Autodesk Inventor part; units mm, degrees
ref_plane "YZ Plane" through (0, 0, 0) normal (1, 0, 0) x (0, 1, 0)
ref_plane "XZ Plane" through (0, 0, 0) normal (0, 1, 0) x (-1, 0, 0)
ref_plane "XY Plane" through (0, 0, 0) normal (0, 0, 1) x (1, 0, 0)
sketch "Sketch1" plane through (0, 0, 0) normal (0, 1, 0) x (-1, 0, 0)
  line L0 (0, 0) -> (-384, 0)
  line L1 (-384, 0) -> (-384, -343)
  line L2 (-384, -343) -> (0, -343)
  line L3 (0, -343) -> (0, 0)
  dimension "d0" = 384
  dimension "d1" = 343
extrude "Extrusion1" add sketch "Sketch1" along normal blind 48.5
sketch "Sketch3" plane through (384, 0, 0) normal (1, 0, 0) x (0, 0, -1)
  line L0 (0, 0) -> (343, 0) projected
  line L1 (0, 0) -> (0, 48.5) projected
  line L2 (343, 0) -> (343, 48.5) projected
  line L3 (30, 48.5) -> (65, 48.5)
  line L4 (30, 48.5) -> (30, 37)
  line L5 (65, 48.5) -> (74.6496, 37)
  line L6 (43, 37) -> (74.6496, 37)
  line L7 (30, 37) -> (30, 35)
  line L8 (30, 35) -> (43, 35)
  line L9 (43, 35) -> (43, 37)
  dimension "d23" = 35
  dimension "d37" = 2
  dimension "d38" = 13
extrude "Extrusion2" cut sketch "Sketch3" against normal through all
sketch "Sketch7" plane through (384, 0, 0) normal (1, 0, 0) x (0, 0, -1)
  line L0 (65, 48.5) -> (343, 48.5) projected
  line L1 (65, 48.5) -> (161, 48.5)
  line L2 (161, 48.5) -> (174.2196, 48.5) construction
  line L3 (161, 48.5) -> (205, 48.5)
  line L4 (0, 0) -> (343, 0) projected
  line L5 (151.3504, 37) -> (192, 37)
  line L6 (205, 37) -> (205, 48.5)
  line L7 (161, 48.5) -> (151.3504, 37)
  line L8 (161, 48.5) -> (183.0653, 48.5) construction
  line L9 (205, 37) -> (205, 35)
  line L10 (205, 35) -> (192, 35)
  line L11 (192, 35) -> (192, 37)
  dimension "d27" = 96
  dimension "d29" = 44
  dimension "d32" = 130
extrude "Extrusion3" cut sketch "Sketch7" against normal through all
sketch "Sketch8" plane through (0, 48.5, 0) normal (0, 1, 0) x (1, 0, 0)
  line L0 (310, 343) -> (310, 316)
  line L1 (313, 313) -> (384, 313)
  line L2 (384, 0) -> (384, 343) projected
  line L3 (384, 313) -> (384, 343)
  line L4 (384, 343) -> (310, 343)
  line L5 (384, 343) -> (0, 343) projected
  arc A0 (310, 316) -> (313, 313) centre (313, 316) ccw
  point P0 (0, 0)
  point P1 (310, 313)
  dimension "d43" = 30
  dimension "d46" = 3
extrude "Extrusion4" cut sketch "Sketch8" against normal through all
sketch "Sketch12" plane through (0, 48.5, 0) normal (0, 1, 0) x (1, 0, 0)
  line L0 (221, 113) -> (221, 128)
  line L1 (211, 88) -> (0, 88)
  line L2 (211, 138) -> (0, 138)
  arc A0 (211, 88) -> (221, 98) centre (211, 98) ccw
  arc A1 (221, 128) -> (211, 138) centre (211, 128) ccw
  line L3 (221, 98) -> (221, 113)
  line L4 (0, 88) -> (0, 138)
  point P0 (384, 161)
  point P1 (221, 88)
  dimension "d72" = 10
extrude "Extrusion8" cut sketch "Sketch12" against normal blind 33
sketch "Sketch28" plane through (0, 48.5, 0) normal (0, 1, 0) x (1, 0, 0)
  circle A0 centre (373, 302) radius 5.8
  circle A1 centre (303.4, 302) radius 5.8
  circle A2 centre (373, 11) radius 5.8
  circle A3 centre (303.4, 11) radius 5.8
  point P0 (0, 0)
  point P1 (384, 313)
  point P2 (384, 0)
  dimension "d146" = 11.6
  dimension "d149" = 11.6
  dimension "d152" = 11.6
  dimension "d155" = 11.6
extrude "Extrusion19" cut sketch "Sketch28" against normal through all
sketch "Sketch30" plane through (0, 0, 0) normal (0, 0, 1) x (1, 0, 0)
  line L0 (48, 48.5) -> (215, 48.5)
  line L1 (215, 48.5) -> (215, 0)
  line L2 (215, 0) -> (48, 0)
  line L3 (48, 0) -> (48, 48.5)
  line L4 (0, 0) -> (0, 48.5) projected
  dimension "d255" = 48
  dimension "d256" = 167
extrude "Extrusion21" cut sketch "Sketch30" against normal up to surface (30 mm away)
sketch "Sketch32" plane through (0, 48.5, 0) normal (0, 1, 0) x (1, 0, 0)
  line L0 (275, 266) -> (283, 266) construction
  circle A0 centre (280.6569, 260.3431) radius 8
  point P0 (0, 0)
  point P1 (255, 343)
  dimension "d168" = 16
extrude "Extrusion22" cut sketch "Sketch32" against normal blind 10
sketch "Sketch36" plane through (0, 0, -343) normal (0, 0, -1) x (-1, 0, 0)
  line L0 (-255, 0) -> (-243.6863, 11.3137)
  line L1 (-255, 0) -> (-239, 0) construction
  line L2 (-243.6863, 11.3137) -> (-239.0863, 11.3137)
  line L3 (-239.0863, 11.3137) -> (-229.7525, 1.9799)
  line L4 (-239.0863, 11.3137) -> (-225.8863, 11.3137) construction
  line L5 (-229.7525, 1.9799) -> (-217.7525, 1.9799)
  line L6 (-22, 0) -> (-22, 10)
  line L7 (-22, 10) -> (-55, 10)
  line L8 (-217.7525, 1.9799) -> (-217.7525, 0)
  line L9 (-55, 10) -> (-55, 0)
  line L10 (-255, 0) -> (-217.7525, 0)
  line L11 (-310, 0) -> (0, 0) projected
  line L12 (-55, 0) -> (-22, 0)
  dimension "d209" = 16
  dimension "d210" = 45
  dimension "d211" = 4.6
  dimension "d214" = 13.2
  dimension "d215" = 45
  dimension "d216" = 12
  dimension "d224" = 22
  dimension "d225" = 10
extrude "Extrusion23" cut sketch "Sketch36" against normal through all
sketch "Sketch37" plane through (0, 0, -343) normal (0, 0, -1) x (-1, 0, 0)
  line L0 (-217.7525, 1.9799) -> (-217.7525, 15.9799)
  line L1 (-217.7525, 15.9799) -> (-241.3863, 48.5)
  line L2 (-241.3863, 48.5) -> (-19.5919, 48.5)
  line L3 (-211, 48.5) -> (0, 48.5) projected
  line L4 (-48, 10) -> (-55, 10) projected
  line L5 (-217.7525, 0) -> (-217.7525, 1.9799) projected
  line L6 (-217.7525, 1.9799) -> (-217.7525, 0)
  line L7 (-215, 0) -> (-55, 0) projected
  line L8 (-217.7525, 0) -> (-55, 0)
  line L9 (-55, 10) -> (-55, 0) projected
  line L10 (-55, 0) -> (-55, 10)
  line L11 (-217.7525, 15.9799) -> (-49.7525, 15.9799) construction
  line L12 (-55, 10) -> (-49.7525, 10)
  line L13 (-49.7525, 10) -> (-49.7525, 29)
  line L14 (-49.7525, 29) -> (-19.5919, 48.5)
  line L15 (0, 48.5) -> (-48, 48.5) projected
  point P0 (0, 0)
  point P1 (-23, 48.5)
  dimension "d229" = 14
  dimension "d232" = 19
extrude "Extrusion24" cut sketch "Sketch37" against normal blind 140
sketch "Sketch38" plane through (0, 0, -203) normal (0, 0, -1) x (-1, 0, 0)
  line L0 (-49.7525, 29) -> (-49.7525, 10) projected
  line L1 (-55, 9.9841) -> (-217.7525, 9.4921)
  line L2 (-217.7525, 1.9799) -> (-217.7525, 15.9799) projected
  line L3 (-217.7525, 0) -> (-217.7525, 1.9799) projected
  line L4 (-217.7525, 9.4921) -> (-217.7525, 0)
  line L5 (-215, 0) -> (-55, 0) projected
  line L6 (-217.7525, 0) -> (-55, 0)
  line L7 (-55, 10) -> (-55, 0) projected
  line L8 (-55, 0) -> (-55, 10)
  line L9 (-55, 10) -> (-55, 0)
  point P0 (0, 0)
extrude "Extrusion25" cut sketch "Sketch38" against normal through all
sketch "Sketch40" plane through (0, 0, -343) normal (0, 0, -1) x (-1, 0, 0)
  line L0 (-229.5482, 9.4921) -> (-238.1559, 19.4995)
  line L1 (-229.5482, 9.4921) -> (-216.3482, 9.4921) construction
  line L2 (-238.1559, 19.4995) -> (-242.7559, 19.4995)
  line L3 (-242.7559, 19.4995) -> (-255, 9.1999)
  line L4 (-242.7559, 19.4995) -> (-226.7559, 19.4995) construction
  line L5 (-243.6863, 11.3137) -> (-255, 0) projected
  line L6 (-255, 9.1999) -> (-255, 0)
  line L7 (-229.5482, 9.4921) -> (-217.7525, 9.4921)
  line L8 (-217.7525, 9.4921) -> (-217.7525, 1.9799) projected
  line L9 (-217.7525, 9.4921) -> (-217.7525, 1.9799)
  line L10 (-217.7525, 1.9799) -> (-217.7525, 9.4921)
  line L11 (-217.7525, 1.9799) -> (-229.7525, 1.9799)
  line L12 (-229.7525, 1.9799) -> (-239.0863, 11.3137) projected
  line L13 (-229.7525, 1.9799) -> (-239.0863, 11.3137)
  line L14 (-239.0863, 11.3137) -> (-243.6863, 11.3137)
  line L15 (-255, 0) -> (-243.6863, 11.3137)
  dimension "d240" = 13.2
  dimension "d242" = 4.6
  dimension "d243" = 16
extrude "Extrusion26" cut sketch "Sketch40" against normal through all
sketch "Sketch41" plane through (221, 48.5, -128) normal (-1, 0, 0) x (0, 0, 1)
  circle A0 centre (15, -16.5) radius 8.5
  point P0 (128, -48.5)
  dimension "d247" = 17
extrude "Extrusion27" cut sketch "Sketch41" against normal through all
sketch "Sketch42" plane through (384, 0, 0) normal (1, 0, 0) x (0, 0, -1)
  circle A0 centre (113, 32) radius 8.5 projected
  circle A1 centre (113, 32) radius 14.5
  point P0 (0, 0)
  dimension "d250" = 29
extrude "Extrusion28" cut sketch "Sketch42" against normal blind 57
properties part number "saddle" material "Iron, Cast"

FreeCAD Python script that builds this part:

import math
import FreeCAD as App
import Part
import Sketcher
Q = App.Units.Quantity


def add_polygon(sketch, points):
    """Adds a closed chain of lines whose ends are joined by coincident constraints."""
    first, n = sketch.GeometryCount, len(points)
    for a, b in zip(points, points[1:] + points[:1]):
        sketch.addGeometry(Part.LineSegment(App.Vector(*a, 0), App.Vector(*b, 0)), False)
    for i in range(n):
        sketch.addConstraint(Sketcher.Constraint("Coincident", first + i, 2, first + (i + 1) % n, 1))

doc = App.newDocument("Part")
params = doc.addObject("Spreadsheet::Sheet", "Params")
for row, (alias, value) in enumerate([
    ("sketch1_width", "384 mm"),
    ("sketch1_height", "343 mm"),
    ("pad1_length", "48.5 mm"),
    ("sketch2_width", "2 mm"),
    ("sketch2_height", "35 mm"),
    ("sketch2_height2", "13 mm"),
    ("sketch2_width2", "13.5 mm"),
    ("sketch3_height", "44 mm"),
    ("sketch3_width", "2 mm"),
    ("sketch3_height2", "13 mm"),
    ("sketch3_width2", "13.5 mm"),
    ("sketch4_radius", "3 mm"),
    ("sketch4_height", "30 mm"),
    ("sketch4_width", "74 mm"),
    ("sketch5_radius", "10 mm"),
    ("sketch5_width", "211 mm"),
    ("sketch5_height", "30 mm"),
    ("pocket4_length", "33 mm"),
    ("sketch6_diameter", "11.6 mm"),
    ("sketch7_width", "167 mm"),
    ("sketch7_height", "48.5 mm"),
    ("pocket6_length", "30 mm"),
    ("sketch8_diameter", "16 mm"),
    ("pocket7_length", "10 mm"),
    ("sketch9_width", "12 mm"),
    ("sketch9_height", "10 mm"),
    ("sketch9_length", "16 mm"),
    ("sketch9_width2", "4.6 mm"),
    ("sketch9_length2", "13.2 mm"),
    ("sketch10_height", "19 mm"),
    ("sketch10_height2", "10 mm"),
    ("sketch10_height3", "15.98 mm"),
    ("pocket9_length", "140 mm"),
    ("sketch12_length", "16 mm"),
    ("sketch12_width", "4.6 mm"),
    ("sketch12_length2", "13.2 mm"),
    ("sketch12_width2", "12 mm"),
    ("sketch12_height", "9.2 mm"),
    ("sketch13_diameter", "17 mm"),
    ("sketch14_diameter", "29 mm"),
    ("sketch14_diameter2", "17 mm"),
    ("pocket13_length", "57 mm"),
], start=1):
    params.set(f"A{row}", alias)
    params.set(f"B{row}", "=" + value)
    params.setAlias(f"B{row}", alias)

body = doc.addObject("PartDesign::Body", "Body")

sketch1 = doc.addObject("Sketcher::SketchObject", "Sketch")
body.addObject(sketch1)
sketch1.AttachmentSupport = (doc.XZ_Plane, [""])
sketch1.MapMode = "FlatFace"
add_polygon(sketch1, [(0, -343), (0, 0), (384, 0), (384, -343)])
sketch1.addConstraint([
    Sketcher.Constraint("Vertical", 0),
    Sketcher.Constraint("Horizontal", 1),
    Sketcher.Constraint("Vertical", 2),
    Sketcher.Constraint("Horizontal", 3),
    Sketcher.Constraint("Coincident", 0, 2, -1, 1),
    Sketcher.Constraint("DistanceX", 1, 1, 1, 2, 384.0),
    Sketcher.Constraint("DistanceY", 0, 1, 0, 2, 343.0),
])
sketch1.setExpression("Constraints[9]", "Params.sketch1_width")
sketch1.setExpression("Constraints[10]", "Params.sketch1_height")
pad1 = doc.addObject("PartDesign::Pad", "Pad")
body.addObject(pad1)
pad1.Profile = sketch1
pad1.setExpression("Length", "Params.pad1_length")
pad1.Reversed = True

sketch2 = doc.addObject("Sketcher::SketchObject", "Sketch001")
body.addObject(sketch2)
sketch2.AttachmentSupport = (doc.YZ_Plane, [""])
sketch2.MapMode = "FlatFace"
sketch2.AttachmentOffset = App.Placement(App.Vector(0, 0, 384), App.Rotation())
add_polygon(sketch2, [(48.5, -65), (48.5, -30), (35, -30), (35, -43), (37, -43), (37, -74.6)])
sketch2.addConstraint([
    Sketcher.Constraint("Vertical", 0),
    Sketcher.Constraint("Horizontal", 1),
    Sketcher.Constraint("Vertical", 2),
    Sketcher.Constraint("Horizontal", 3),
    Sketcher.Constraint("Vertical", 4),
    Sketcher.Constraint("DistanceX", 3, 1, 3, 2, 2.0),
    Sketcher.Constraint("DistanceY", 0, 1, 0, 2, 35.0),
    Sketcher.Constraint("DistanceY", 2, 2, 2, 1, 13.0),
    Sketcher.Constraint("DistanceX", -1, 1, 1, 2, 35.0),
    Sketcher.Constraint("Angle", 5, Q("39.9999 deg")),
    Sketcher.Constraint("DistanceX", 1, 2, 1, 1, 13.5),
    Sketcher.Constraint("DistanceY", 0, 2, -1, 1, 30.0),
])
sketch2.setExpression("Constraints[11]", "Params.sketch2_width")
sketch2.setExpression("Constraints[12]", "Params.sketch2_height")
sketch2.setExpression("Constraints[13]", "Params.sketch2_height2")
sketch2.setExpression("Constraints[16]", "Params.sketch2_width2")
pocket1 = doc.addObject("PartDesign::Pocket", "Pocket")
body.addObject(pocket1)
pocket1.Profile = sketch2
pocket1.Type = "ThroughAll"

sketch3 = doc.addObject("Sketcher::SketchObject", "Sketch002")
body.addObject(sketch3)
sketch3.AttachmentSupport = (doc.YZ_Plane, [""])
sketch3.MapMode = "FlatFace"
sketch3.AttachmentOffset = App.Placement(App.Vector(0, 0, 384), App.Rotation())
add_polygon(sketch3, [(48.5, -205), (48.5, -161), (37, -151.4), (37, -192), (35, -192), (35, -205)])
sketch3.addConstraint([
    Sketcher.Constraint("Vertical", 0),
    Sketcher.Constraint("Vertical", 2),
    Sketcher.Constraint("Horizontal", 3),
    Sketcher.Constraint("Vertical", 4),
    Sketcher.Constraint("Horizontal", 5),
    Sketcher.Constraint("DistanceY", 0, 1, 0, 2, 44.0),
    Sketcher.Constraint("DistanceX", 3, 2, 3, 1, 2.0),
    Sketcher.Constraint("DistanceY", 4, 2, 4, 1, 13.0),
    Sketcher.Constraint("Angle", 1, Q("140.0001 deg")),
    Sketcher.Constraint("DistanceX", 5, 1, 5, 2, 13.5),
    Sketcher.Constraint("DistanceY", 0, 2, -1, 1, 161.0),
    Sketcher.Constraint("DistanceX", -1, 1, 1, 2, 37.0),
])
sketch3.setExpression("Constraints[11]", "Params.sketch3_height")
sketch3.setExpression("Constraints[12]", "Params.sketch3_width")
sketch3.setExpression("Constraints[13]", "Params.sketch3_height2")
sketch3.setExpression("Constraints[15]", "Params.sketch3_width2")
pocket2 = doc.addObject("PartDesign::Pocket", "Pocket001")
body.addObject(pocket2)
pocket2.Profile = sketch3
pocket2.Type = "ThroughAll"

sketch4 = doc.addObject("Sketcher::SketchObject", "Sketch003")
body.addObject(sketch4)
sketch4.AttachmentSupport = (doc.XZ_Plane, [""])
sketch4.MapMode = "FlatFace"
sketch4.AttachmentOffset = App.Placement(App.Vector(0, 0, -48.5), App.Rotation())
sketch4.addGeometry([
    Part.LineSegment(App.Vector(384, -343, 0), App.Vector(310, -343, 0)),
    Part.LineSegment(App.Vector(310, -343, 0), App.Vector(310, -316, 0)),
    Part.ArcOfCircle(Part.Circle(App.Vector(313, -316, 0), App.Vector(0, 0, 1), 3), math.radians(90), math.radians(180)),
    Part.LineSegment(App.Vector(313, -313, 0), App.Vector(384, -313, 0)),
    Part.LineSegment(App.Vector(384, -313, 0), App.Vector(384, -343, 0)),
], False)
sketch4.addConstraint([
    Sketcher.Constraint("Coincident", 0, 2, 1, 1),
    Sketcher.Constraint("Tangent", 1, 2, 2, 2),
    Sketcher.Constraint("Tangent", 2, 1, 3, 1),
    Sketcher.Constraint("Coincident", 3, 2, 4, 1),
    Sketcher.Constraint("Coincident", 4, 2, 0, 1),
    Sketcher.Constraint("Horizontal", 0),
    Sketcher.Constraint("Vertical", 1),
    Sketcher.Constraint("Horizontal", 3),
    Sketcher.Constraint("Vertical", 4),
    Sketcher.Constraint("Radius", 2, 3.0),
    Sketcher.Constraint("DistanceY", 4, 2, 4, 1, 30.0),
    Sketcher.Constraint("DistanceX", 0, 2, 0, 1, 74.0),
    Sketcher.Constraint("DistanceX", -1, 1, 2, 3, 313.0),
    Sketcher.Constraint("DistanceY", 2, 3, -1, 1, 316.0),
])
sketch4.setExpression("Constraints[9]", "Params.sketch4_radius")
sketch4.setExpression("Constraints[10]", "Params.sketch4_height")
sketch4.setExpression("Constraints[11]", "Params.sketch4_width")
pocket3 = doc.addObject("PartDesign::Pocket", "Pocket002")
body.addObject(pocket3)
pocket3.Profile = sketch4
pocket3.Type = "ThroughAll"
pocket3.Reversed = True

sketch5 = doc.addObject("Sketcher::SketchObject", "Sketch004")
body.addObject(sketch5)
sketch5.AttachmentSupport = (doc.XZ_Plane, [""])
sketch5.MapMode = "FlatFace"
sketch5.AttachmentOffset = App.Placement(App.Vector(0, 0, -48.5), App.Rotation())
sketch5.addGeometry([
    Part.LineSegment(App.Vector(221, -98, 0), App.Vector(221, -128, 0)),
    Part.ArcOfCircle(Part.Circle(App.Vector(211, -128, 0), App.Vector(0, 0, 1), 10), math.radians(-90), math.radians(0)),
    Part.LineSegment(App.Vector(211, -138, 0), App.Vector(0, -138, 0)),
    Part.LineSegment(App.Vector(0, -138, 0), App.Vector(0, -88, 0)),
    Part.LineSegment(App.Vector(0, -88, 0), App.Vector(211, -88, 0)),
    Part.ArcOfCircle(Part.Circle(App.Vector(211, -98, 0), App.Vector(0, 0, 1), 10), math.radians(0), math.radians(90)),
], False)
sketch5.addConstraint([
    Sketcher.Constraint("Tangent", 0, 2, 1, 2),
    Sketcher.Constraint("Tangent", 1, 1, 2, 1),
    Sketcher.Constraint("Coincident", 2, 2, 3, 1),
    Sketcher.Constraint("Coincident", 3, 2, 4, 1),
    Sketcher.Constraint("Tangent", 4, 2, 5, 2),
    Sketcher.Constraint("Tangent", 5, 1, 0, 1),
    Sketcher.Constraint("Vertical", 0),
    Sketcher.Constraint("Horizontal", 2),
    Sketcher.Constraint("Vertical", 3),
    Sketcher.Constraint("Horizontal", 4),
    Sketcher.Constraint("Equal", 1, 5),
    Sketcher.Constraint("PointOnObject", 2, 2, -2),
    Sketcher.Constraint("Radius", 1, 10.0),
    Sketcher.Constraint("DistanceX", 2, 2, 2, 1, 211.0),
    Sketcher.Constraint("DistanceY", 0, 2, 0, 1, 30.0),
    Sketcher.Constraint("DistanceY", 1, 3, -1, 1, 128.0),
])
sketch5.setExpression("Constraints[12]", "Params.sketch5_radius")
sketch5.setExpression("Constraints[13]", "Params.sketch5_width")
sketch5.setExpression("Constraints[14]", "Params.sketch5_height")
pocket4 = doc.addObject("PartDesign::Pocket", "Pocket003")
body.addObject(pocket4)
pocket4.Profile = sketch5
pocket4.setExpression("Length", "Params.pocket4_length")
pocket4.Reversed = True

sketch6 = doc.addObject("Sketcher::SketchObject", "Sketch005")
body.addObject(sketch6)
sketch6.AttachmentSupport = (doc.XZ_Plane, [""])
sketch6.MapMode = "FlatFace"
sketch6.AttachmentOffset = App.Placement(App.Vector(0, 0, -48.5), App.Rotation())
sketch6.addGeometry([
    Part.Circle(App.Vector(373, -302, 0), App.Vector(0, 0, 1), 6),
    Part.Circle(App.Vector(303, -302, 0), App.Vector(0, 0, 1), 6),
    Part.Circle(App.Vector(373, -11, 0), App.Vector(0, 0, 1), 6),
    Part.Circle(App.Vector(303, -11, 0), App.Vector(0, 0, 1), 6),
], False)
sketch6.addConstraint([
    Sketcher.Constraint("Equal", 0, 1),
    Sketcher.Constraint("Equal", 1, 2),
    Sketcher.Constraint("Equal", 2, 3),
    Sketcher.Constraint("Horizontal", 0, 3, 1, 3),
    Sketcher.Constraint("Horizontal", 2, 3, 3, 3),
    Sketcher.Constraint("Vertical", 0, 3, 2, 3),
    Sketcher.Constraint("Vertical", 1, 3, 3, 3),
    Sketcher.Constraint("Diameter", 0, 11.6),
    Sketcher.Constraint("DistanceX", -1, 1, 0, 3, 373.0),
    Sketcher.Constraint("DistanceY", 0, 3, -1, 1, 302.0),
    Sketcher.Constraint("DistanceY", 2, 3, -1, 1, 11.0),
    Sketcher.Constraint("DistanceX", -1, 1, 1, 3, 303.4),
])
sketch6.setExpression("Constraints[7]", "Params.sketch6_diameter")
pocket5 = doc.addObject("PartDesign::Pocket", "Pocket004")
body.addObject(pocket5)
pocket5.Profile = sketch6
pocket5.Type = "ThroughAll"
pocket5.Reversed = True

sketch7 = doc.addObject("Sketcher::SketchObject", "Sketch006")
body.addObject(sketch7)
sketch7.AttachmentSupport = (doc.XY_Plane, [""])
sketch7.MapMode = "FlatFace"
add_polygon(sketch7, [(215, 48), (48, 48), (48, 0), (215, 0)])
sketch7.addConstraint([
    Sketcher.Constraint("Horizontal", 0),
    Sketcher.Constraint("Vertical", 1),
    Sketcher.Constraint("Horizontal", 2),
    Sketcher.Constraint("Vertical", 3),
    Sketcher.Constraint("PointOnObject", 1, 2, -1),
    Sketcher.Constraint("DistanceX", 0, 2, 0, 1, 167.0),
    Sketcher.Constraint("DistanceX", -1, 1, 0, 2, 48.0),
    Sketcher.Constraint("DistanceY", 1, 2, 1, 1, 48.5),
])
sketch7.setExpression("Constraints[9]", "Params.sketch7_width")
sketch7.setExpression("Constraints[11]", "Params.sketch7_height")
pocket6 = doc.addObject("PartDesign::Pocket", "Pocket005")
body.addObject(pocket6)
pocket6.Profile = sketch7
pocket6.setExpression("Length", "Params.pocket6_length")

sketch8 = doc.addObject("Sketcher::SketchObject", "Sketch007")
body.addObject(sketch8)
sketch8.AttachmentSupport = (doc.XZ_Plane, [""])
sketch8.MapMode = "FlatFace"
sketch8.AttachmentOffset = App.Placement(App.Vector(0, 0, -48.5), App.Rotation())
sketch8.addGeometry(Part.Circle(App.Vector(281, -260, 0), App.Vector(0, 0, 1), 8), False)
sketch8.addConstraint([
    Sketcher.Constraint("Diameter", 0, 16.0),
    Sketcher.Constraint("DistanceX", -1, 1, 0, 3, 280.657),
    Sketcher.Constraint("DistanceY", 0, 3, -1, 1, 260.343),
])
sketch8.setExpression("Constraints[0]", "Params.sketch8_diameter")
pocket7 = doc.addObject("PartDesign::Pocket", "Pocket006")
body.addObject(pocket7)
pocket7.Profile = sketch8
pocket7.setExpression("Length", "Params.pocket7_length")
pocket7.Reversed = True

sketch9 = doc.addObject("Sketcher::SketchObject", "Sketch008")
body.addObject(sketch9)
sketch9.AttachmentSupport = (doc.XY_Plane, [""])
sketch9.MapMode = "FlatFace"
sketch9.AttachmentOffset = App.Placement(App.Vector(0, 0, -343), App.Rotation())
add_polygon(sketch9, [(55, 10), (55, 0), (22, 0), (22, 10)])
add_polygon(sketch9, [(243.7, 11.3), (255, 0), (217.8, 0), (217.8, 2), (229.8, 2), (239.1, 11.3)])
sketch9.addConstraint([
    Sketcher.Constraint("Vertical", 0),
    Sketcher.Constraint("Horizontal", 1),
    Sketcher.Constraint("Vertical", 2),
    Sketcher.Constraint("Horizontal", 3),
    Sketcher.Constraint("Horizontal", 5),
    Sketcher.Constraint("Vertical", 6),
    Sketcher.Constraint("Horizontal", 7),
    Sketcher.Constraint("Horizontal", 9),
    Sketcher.Constraint("PointOnObject", 0, 2, -1),
    Sketcher.Constraint("PointOnObject", 4, 2, -1),
    Sketcher.Constraint("Perpendicular", 4, 8),
    Sketcher.Constraint("DistanceX", 7, 1, 7, 2, 12.0),
    Sketcher.Constraint("DistanceY", 0, 2, 0, 1, 10.0),
    Sketcher.Constraint("Angle", 4, Q("-45 deg")),
    Sketcher.Constraint("Distance", 4, 16.0),
    Sketcher.Constraint("DistanceX", 9, 1, 9, 2, 4.6),
    Sketcher.Constraint("DistanceX", -1, 1, 1, 2, 22.0),
    Sketcher.Constraint("Distance", 8, 13.2),
    Sketcher.Constraint("DistanceX", 1, 2, 1, 1, 33.0),
    Sketcher.Constraint("DistanceX", -1, 1, 4, 2, 255.0),
])
sketch9.setExpression("Constraints[21]", "Params.sketch9_width")
sketch9.setExpression("Constraints[22]", "Params.sketch9_height")
sketch9.setExpression("Constraints[24]", "Params.sketch9_length")
sketch9.setExpression("Constraints[25]", "Params.sketch9_width2")
sketch9.setExpression("Constraints[27]", "Params.sketch9_length2")
pocket8 = doc.addObject("PartDesign::Pocket", "Pocket007")
body.addObject(pocket8)
pocket8.Profile = sketch9
pocket8.Type = "ThroughAll"
pocket8.Reversed = True

sketch10 = doc.addObject("Sketcher::SketchObject", "Sketch009")
body.addObject(sketch10)
sketch10.AttachmentSupport = (doc.XY_Plane, [""])
sketch10.MapMode = "FlatFace"
sketch10.AttachmentOffset = App.Placement(App.Vector(0, 0, -343), App.Rotation())
add_polygon(sketch10, [(218, 16), (218, 0), (55, 0), (55, 10), (50, 10), (50, 29), (20, 48), (241, 48)])
sketch10.addConstraint([
    Sketcher.Constraint("Vertical", 0),
    Sketcher.Constraint("Horizontal", 1),
    Sketcher.Constraint("Vertical", 2),
    Sketcher.Constraint("Horizontal", 3),
    Sketcher.Constraint("Vertical", 4),
    Sketcher.Constraint("Horizontal", 6),
    Sketcher.Constraint("PointOnObject", 0, 2, -1),
    Sketcher.Constraint("DistanceY", 4, 1, 4, 2, 19.0),
    Sketcher.Constraint("DistanceY", 2, 1, 2, 2, 10.0),
    Sketcher.Constraint("DistanceX", -1, 1, 1, 2, 55.0),
    Sketcher.Constraint("DistanceX", 3, 2, 0, 2, 168.0),
    Sketcher.Constraint("DistanceY", 0, 2, 0, 1, 15.98),
    Sketcher.Constraint("DistanceY", -1, 1, 5, 2, 48.5),
    Sketcher.Constraint("Distance", 7, 40.201),
    Sketcher.Constraint("DistanceX", 1, 2, 1, 1, 162.7525),
    Sketcher.Constraint("DistanceX", 6, 1, 6, 2, 221.7944),
])
sketch10.setExpression("Constraints[15]", "Params.sketch10_height")
sketch10.setExpression("Constraints[16]", "Params.sketch10_height2")
sketch10.setExpression("Constraints[19]", "Params.sketch10_height3")
pocket9 = doc.addObject("PartDesign::Pocket", "Pocket008")
body.addObject(pocket9)
pocket9.Profile = sketch10
pocket9.setExpression("Length", "Params.pocket9_length")
pocket9.Reversed = True

sketch11 = doc.addObject("Sketcher::SketchObject", "Sketch010")
body.addObject(sketch11)
sketch11.AttachmentSupport = (doc.XY_Plane, [""])
sketch11.MapMode = "FlatFace"
sketch11.AttachmentOffset = App.Placement(App.Vector(0, 0, -203), App.Rotation())
add_polygon(sketch11, [(55, 0), (55, 10), (218, 9), (218, 0)])
sketch11.addConstraint([
    Sketcher.Constraint("Vertical", 0),
    Sketcher.Constraint("Vertical", 2),
    Sketcher.Constraint("Horizontal", 3),
    Sketcher.Constraint("PointOnObject", 2, 2, -1),
    Sketcher.Constraint("DistanceX", -1, 1, 0, 2, 55.0),
    Sketcher.Constraint("DistanceY", 0, 1, 0, 2, 9.984),
    Sketcher.Constraint("DistanceY", 2, 2, 2, 1, 9.492),
    Sketcher.Constraint("DistanceX", 3, 2, 3, 1, 162.7525),
])
pocket10 = doc.addObject("PartDesign::Pocket", "Pocket009")
body.addObject(pocket10)
pocket10.Profile = sketch11
pocket10.Type = "ThroughAll"
pocket10.Reversed = True

sketch12 = doc.addObject("Sketcher::SketchObject", "Sketch011")
body.addObject(sketch12)
sketch12.AttachmentSupport = (doc.XY_Plane, [""])
sketch12.MapMode = "FlatFace"
sketch12.AttachmentOffset = App.Placement(App.Vector(0, 0, -343), App.Rotation())
add_polygon(sketch12, [(217.8, 9.5), (229.5, 9.5), (238.2, 19.5), (242.8, 19.5), (255, 9.2), (255, 0), (243.7, 11.3), (239.1, 11.3), (229.8, 2), (217.8, 2)])
sketch12.addConstraint([
    Sketcher.Constraint("Horizontal", 0),
    Sketcher.Constraint("Horizontal", 2),
    Sketcher.Constraint("Vertical", 4),
    Sketcher.Constraint("Horizontal", 6),
    Sketcher.Constraint("Horizontal", 8),
    Sketcher.Constraint("Vertical", 9),
    Sketcher.Constraint("PointOnObject", 4, 2, -1),
    Sketcher.Constraint("Perpendicular", 5, 7),
    Sketcher.Constraint("Equal", 2, 6),
    Sketcher.Constraint("Equal", 3, 5),
    Sketcher.Constraint("Equal", 1, 7),
    Sketcher.Constraint("Distance", 3, 16.0),
    Sketcher.Constraint("DistanceX", 2, 1, 2, 2, 4.6),
    Sketcher.Constraint("Distance", 1, 13.2),
    Sketcher.Constraint("DistanceX", 8, 2, 8, 1, 12.0),
    Sketcher.Constraint("Angle", 5, Q("135 deg")),
    Sketcher.Constraint("DistanceY", 4, 2, 4, 1, 9.2),
    Sketcher.Constraint("DistanceX", -1, 1, 3, 2, 255.0),
    Sketcher.Constraint("Angle", 1, Q("49.3 deg")),
    Sketcher.Constraint("Angle", 3, Q("-40.0702 deg")),
])
sketch12.setExpression("Constraints[21]", "Params.sketch12_length")
sketch12.setExpression("Constraints[22]", "Params.sketch12_width")
sketch12.setExpression("Constraints[23]", "Params.sketch12_length2")
sketch12.setExpression("Constraints[24]", "Params.sketch12_width2")
sketch12.setExpression("Constraints[26]", "Params.sketch12_height")
pocket11 = doc.addObject("PartDesign::Pocket", "Pocket010")
body.addObject(pocket11)
pocket11.Profile = sketch12
pocket11.Type = "ThroughAll"
pocket11.Reversed = True

sketch13 = doc.addObject("Sketcher::SketchObject", "Sketch012")
body.addObject(sketch13)
sketch13.AttachmentSupport = (doc.YZ_Plane, [""])
sketch13.MapMode = "FlatFace"
sketch13.AttachmentOffset = App.Placement(App.Vector(0, 0, 221), App.Rotation())
sketch13.addGeometry(Part.Circle(App.Vector(32, -113, 0), App.Vector(0, 0, 1), 8), False)
sketch13.addConstraint([
    Sketcher.Constraint("Diameter", 0, 17.0),
    Sketcher.Constraint("DistanceX", -1, 1, 0, 3, 32.0),
    Sketcher.Constraint("DistanceY", 0, 3, -1, 1, 113.0),
])
sketch13.setExpression("Constraints[0]", "Params.sketch13_diameter")
pocket12 = doc.addObject("PartDesign::Pocket", "Pocket011")
body.addObject(pocket12)
pocket12.Profile = sketch13
pocket12.Type = "ThroughAll"
pocket12.Reversed = True

sketch14 = doc.addObject("Sketcher::SketchObject", "Sketch013")
body.addObject(sketch14)
sketch14.AttachmentSupport = (doc.YZ_Plane, [""])
sketch14.MapMode = "FlatFace"
sketch14.AttachmentOffset = App.Placement(App.Vector(0, 0, 384), App.Rotation())
sketch14.addGeometry([
    Part.Circle(App.Vector(32, -113, 0), App.Vector(0, 0, 1), 14),
    Part.Circle(App.Vector(32, -113, 0), App.Vector(0, 0, 1), 8),
], False)
sketch14.addConstraint([
    Sketcher.Constraint("Coincident", 1, 3, 0, 3),
    Sketcher.Constraint("Diameter", 0, 29.0),
    Sketcher.Constraint("Diameter", 1, 17.0),
    Sketcher.Constraint("DistanceX", -1, 1, 0, 3, 32.0),
    Sketcher.Constraint("DistanceY", 0, 3, -1, 1, 113.0),
])
sketch14.setExpression("Constraints[1]", "Params.sketch14_diameter")
sketch14.setExpression("Constraints[2]", "Params.sketch14_diameter2")
pocket13 = doc.addObject("PartDesign::Pocket", "Pocket012")
body.addObject(pocket13)
pocket13.Profile = sketch14
pocket13.setExpression("Length", "Params.pocket13_length")

doc.recompute()
